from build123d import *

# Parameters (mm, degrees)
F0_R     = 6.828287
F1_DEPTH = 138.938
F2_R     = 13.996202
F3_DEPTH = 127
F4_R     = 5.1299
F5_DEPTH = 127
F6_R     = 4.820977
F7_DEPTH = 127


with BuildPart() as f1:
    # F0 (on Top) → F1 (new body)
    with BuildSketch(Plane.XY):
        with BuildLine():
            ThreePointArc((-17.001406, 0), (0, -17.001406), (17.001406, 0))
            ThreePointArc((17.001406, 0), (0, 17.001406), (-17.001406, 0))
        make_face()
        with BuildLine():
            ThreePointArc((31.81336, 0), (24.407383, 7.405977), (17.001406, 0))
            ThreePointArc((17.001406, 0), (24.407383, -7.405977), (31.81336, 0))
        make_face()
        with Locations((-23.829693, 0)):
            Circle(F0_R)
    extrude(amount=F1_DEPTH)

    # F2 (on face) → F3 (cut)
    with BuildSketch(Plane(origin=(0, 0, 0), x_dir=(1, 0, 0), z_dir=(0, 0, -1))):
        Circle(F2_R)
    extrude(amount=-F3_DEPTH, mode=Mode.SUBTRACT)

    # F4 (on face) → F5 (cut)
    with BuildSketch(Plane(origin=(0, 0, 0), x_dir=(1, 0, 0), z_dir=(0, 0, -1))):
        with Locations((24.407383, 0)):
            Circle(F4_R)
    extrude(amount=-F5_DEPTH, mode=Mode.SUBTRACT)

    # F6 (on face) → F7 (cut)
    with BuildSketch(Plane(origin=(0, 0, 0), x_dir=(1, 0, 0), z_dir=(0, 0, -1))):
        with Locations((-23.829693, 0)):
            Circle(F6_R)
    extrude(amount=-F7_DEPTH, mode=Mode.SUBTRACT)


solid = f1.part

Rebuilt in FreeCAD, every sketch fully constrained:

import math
import FreeCAD as App
import Part
import Sketcher

V = App.Vector
Q = App.Units.Quantity

doc = App.newDocument("Part")
body = doc.addObject("PartDesign::Body", "Body")
body.AllowCompound = True

# Sketch on XY plane
sketch1 = body.newObject("Sketcher::SketchObject", "Sketch")
sketch1.AttachmentSupport = (doc.getObject("XY_Plane"), [""])
sketch1.MapMode = "FlatFace"
sketch1.addGeometry(Part.ArcOfCircle(Part.Circle(V(0, 0, 0), V(0, 0, 1), 17), math.radians(0), math.radians(180)), False)
sketch1.addGeometry(Part.ArcOfCircle(Part.Circle(V(0, 0, 0), V(0, 0, 1), 17), math.radians(180), math.radians(360)), False)
sketch1.addGeometry(Part.Circle(V(24, 0, 0), V(0, 0, 1), 7), False)
sketch1.addGeometry(Part.Circle(V(-24, 0, 0), V(0, 0, 1), 7), False)
sketch1.addConstraint(Sketcher.Constraint("Tangent", 0, 1, 1, 2))
sketch1.addConstraint(Sketcher.Constraint("Coincident", 1, 1, 0, 2))
sketch1.addConstraint(Sketcher.Constraint("Coincident", 0, 3, -1, 1))
sketch1.addConstraint(Sketcher.Constraint("PointOnObject", 2, 3, -1))
sketch1.addConstraint(Sketcher.Constraint("PointOnObject", 3, 3, -1))
sketch1.addConstraint(Sketcher.Constraint("PointOnObject", 0, 1, -1))
sketch1.addConstraint(Sketcher.Constraint("PointOnObject", 1, 1, -1))
sketch1.addConstraint(Sketcher.Constraint("Diameter", 2, Q("14.811954 mm")))
sketch1.addConstraint(Sketcher.Constraint("Diameter", 3, Q("13.656574 mm")))
sketch1.addConstraint(Sketcher.Constraint("Radius", 0, Q("17.001406 mm")))
sketch1.addConstraint(Sketcher.Constraint("DistanceX", 3, 3, 0, 1, Q("40.831099 mm")))
sketch1.addConstraint(Sketcher.Constraint("DistanceX", 1, 1, 2, 3, Q("41.408789 mm")))
pad1 = body.newObject("PartDesign::Pad", "Pad")
pad1.Profile = sketch1
pad1.Length = Q("5.47 in")

# Sketch on XY plane
sketch2 = body.newObject("Sketcher::SketchObject", "Sketch001")
sketch2.AttachmentSupport = (doc.getObject("XY_Plane"), [""])
sketch2.MapMode = "FlatFace"
sketch2.addGeometry(Part.Circle(V(0, 0, 0), V(0, 0, 1), 14), False)
sketch2.addConstraint(Sketcher.Constraint("Coincident", 0, 3, -1, 1))
sketch2.addConstraint(Sketcher.Constraint("Diameter", 0, Q("27.992404 mm")))
pocket1 = body.newObject("PartDesign::Pocket", "Pocket")
pocket1.Profile = sketch2
pocket1.Length = Q("5 in")
pocket1.Reversed = True

# Sketch on XY plane
sketch3 = body.newObject("Sketcher::SketchObject", "Sketch002")
sketch3.AttachmentSupport = (doc.getObject("XY_Plane"), [""])
sketch3.MapMode = "FlatFace"
sketch3.addGeometry(Part.Circle(V(24, 0, 0), V(0, 0, 1), 5), False)
sketch3.addConstraint(Sketcher.Constraint("PointOnObject", 0, 3, -1))
sketch3.addConstraint(Sketcher.Constraint("Diameter", 0, Q("10.2598 mm")))
sketch3.addConstraint(Sketcher.Constraint("DistanceX", -1, 1, 0, 3, Q("24.407383 mm")))
pocket2 = body.newObject("PartDesign::Pocket", "Pocket001")
pocket2.Profile = sketch3
pocket2.Length = Q("5 in")
pocket2.Reversed = True

# Sketch on XY plane
sketch4 = body.newObject("Sketcher::SketchObject", "Sketch003")
sketch4.AttachmentSupport = (doc.getObject("XY_Plane"), [""])
sketch4.MapMode = "FlatFace"
sketch4.addGeometry(Part.Circle(V(-23.8, 0, 0), V(0, 0, 1), 4.8), False)
sketch4.addConstraint(Sketcher.Constraint("PointOnObject", 0, 3, -1))
sketch4.addConstraint(Sketcher.Constraint("Diameter", 0, Q("9.641954 mm")))
sketch4.addConstraint(Sketcher.Constraint("DistanceX", 0, 3, -1, 1, Q("23.829693 mm")))
pocket3 = body.newObject("PartDesign::Pocket", "Pocket002")
pocket3.Profile = sketch4
pocket3.Length = Q("5 in")
pocket3.Reversed = True

doc.recompute()
